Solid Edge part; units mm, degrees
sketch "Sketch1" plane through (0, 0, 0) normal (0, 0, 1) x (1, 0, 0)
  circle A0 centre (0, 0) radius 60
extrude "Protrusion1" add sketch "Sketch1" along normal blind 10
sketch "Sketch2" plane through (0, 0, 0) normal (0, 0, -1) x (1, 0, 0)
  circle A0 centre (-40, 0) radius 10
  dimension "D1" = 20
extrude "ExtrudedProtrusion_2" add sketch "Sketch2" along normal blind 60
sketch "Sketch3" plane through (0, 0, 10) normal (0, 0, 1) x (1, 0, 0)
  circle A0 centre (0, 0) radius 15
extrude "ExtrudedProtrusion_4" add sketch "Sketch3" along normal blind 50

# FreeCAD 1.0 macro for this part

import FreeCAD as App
import Part
import Sketcher

V = App.Vector
Q = App.Units.Quantity

doc = App.newDocument("Part")
params = doc.addObject("Spreadsheet::Sheet", "Params")
for row, (alias, value) in enumerate([
    ("sketch1_diameter", "120 mm"),
    ("pad1_length", "10 mm"),
    ("sketch2_diameter", "20 mm"),
    ("pad2_length", "60 mm"),
    ("sketch3_diameter", "30 mm"),
    ("pad3_length", "50 mm"),
], start=1):
    params.set(f"A{row}", alias)
    params.set(f"B{row}", "=" + value)
    params.setAlias(f"B{row}", alias)

body = doc.addObject("PartDesign::Body", "Body")

# Sketch on XY plane
sketch1 = body.newObject("Sketcher::SketchObject", "Sketch")
sketch1.AttachmentSupport = (doc.getObject("XY_Plane"), [""])
sketch1.MapMode = "FlatFace"
sketch1.addGeometry(Part.Circle(V(0, 0, 0), V(0, 0, 1), 60), False)
sketch1.addConstraint([
    Sketcher.Constraint("Coincident", 0, 3, -1, 1),
    Sketcher.Constraint("Diameter", 0, Q("120 mm")),
])
sketch1.setExpression("Constraints[1]", "Params.sketch1_diameter")
pad1 = body.newObject("PartDesign::Pad", "Pad")
pad1.Profile = sketch1
pad1.setExpression("Length", "Params.pad1_length")

# Sketch on XY plane
sketch2 = body.newObject("Sketcher::SketchObject", "Sketch001")
sketch2.AttachmentSupport = (doc.getObject("XY_Plane"), [""])
sketch2.MapMode = "FlatFace"
sketch2.addGeometry(Part.Circle(V(-40, 0, 0), V(0, 0, 1), 10), False)
sketch2.addConstraint([
    Sketcher.Constraint("PointOnObject", 0, 3, -1),
    Sketcher.Constraint("Diameter", 0, Q("20 mm")),
    Sketcher.Constraint("DistanceX", 0, 3, -1, 1, Q("40 mm")),
])
sketch2.setExpression("Constraints[1]", "Params.sketch2_diameter")
pad2 = body.newObject("PartDesign::Pad", "Pad001")
pad2.Profile = sketch2
pad2.setExpression("Length", "Params.pad2_length")
pad2.Reversed = True

# Sketch on XY plane
sketch3 = body.newObject("Sketcher::SketchObject", "Sketch002")
sketch3.AttachmentSupport = (doc.getObject("XY_Plane"), [""])
sketch3.MapMode = "FlatFace"
sketch3.AttachmentOffset = App.Placement(V(0, 0, 10), App.Rotation())
sketch3.addGeometry(Part.Circle(V(0, 0, 0), V(0, 0, 1), 15), False)
sketch3.addConstraint([
    Sketcher.Constraint("Coincident", 0, 3, -1, 1),
    Sketcher.Constraint("Diameter", 0, Q("30 mm")),
])
sketch3.setExpression("Constraints[1]", "Params.sketch3_diameter")
pad3 = body.newObject("PartDesign::Pad", "Pad002")
pad3.Profile = sketch3
pad3.setExpression("Length", "Params.pad3_length")

doc.recompute()
